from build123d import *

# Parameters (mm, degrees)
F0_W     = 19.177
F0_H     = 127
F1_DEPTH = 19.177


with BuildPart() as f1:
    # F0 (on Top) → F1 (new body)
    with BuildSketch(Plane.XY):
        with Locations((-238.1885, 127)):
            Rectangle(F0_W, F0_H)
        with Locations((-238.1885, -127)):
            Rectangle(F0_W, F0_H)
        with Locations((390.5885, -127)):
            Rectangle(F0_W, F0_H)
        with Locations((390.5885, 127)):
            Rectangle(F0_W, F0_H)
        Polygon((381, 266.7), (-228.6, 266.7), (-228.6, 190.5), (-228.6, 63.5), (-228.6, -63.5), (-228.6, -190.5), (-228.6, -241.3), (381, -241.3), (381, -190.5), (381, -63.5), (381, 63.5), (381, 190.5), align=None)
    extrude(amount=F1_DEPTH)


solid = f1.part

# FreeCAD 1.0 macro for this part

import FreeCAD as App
import Part
import Sketcher
from FreeCAD import Vector
Q = App.Units.Quantity


def add_polygon(sketch, points):
    """Adds a closed chain of lines whose ends are joined by coincident constraints."""
    first, n = sketch.GeometryCount, len(points)
    for a, b in zip(points, points[1:] + points[:1]):
        sketch.addGeometry(Part.LineSegment(App.Vector(*a, 0), App.Vector(*b, 0)), False)
    for i in range(n):
        sketch.addConstraint(Sketcher.Constraint("Coincident", first + i, 2, first + (i + 1) % n, 1))

doc = App.newDocument("Part")
body = doc.addObject("PartDesign::Body", "Body")

# Sketch on XY plane
sketch1 = body.newObject("Sketcher::SketchObject", "Sketch")
sketch1.AttachmentSupport = (doc.getObject("XY_Plane"), [""])
sketch1.MapMode = "FlatFace"
add_polygon(sketch1, [(-248, 190), (-248, 64), (-229, 64), (-229, -64), (-248, -64), (-248, -190), (-229, -190), (-229, -241), (381, -241), (381, -190), (400, -190), (400, -64), (381, -64), (381, 64), (400, 64), (400, 190), (381, 190), (381, 267), (-229, 267), (-229, 190)])  # lines 0-19
sketch1.addConstraint([
    Sketcher.Constraint("Vertical", 0),
    Sketcher.Constraint("Horizontal", 1),
    Sketcher.Constraint("Vertical", 2),
    Sketcher.Constraint("Horizontal", 3),
    Sketcher.Constraint("Vertical", 4),
    Sketcher.Constraint("Horizontal", 5),
    Sketcher.Constraint("Vertical", 6),
    Sketcher.Constraint("Horizontal", 7),
    Sketcher.Constraint("Vertical", 8),
    Sketcher.Constraint("Horizontal", 9),
    Sketcher.Constraint("Vertical", 10),
    Sketcher.Constraint("Horizontal", 11),
    Sketcher.Constraint("Vertical", 12),
    Sketcher.Constraint("Horizontal", 13),
    Sketcher.Constraint("Vertical", 14),
    Sketcher.Constraint("Horizontal", 15),
    Sketcher.Constraint("Vertical", 16),
    Sketcher.Constraint("Horizontal", 17),
    Sketcher.Constraint("Vertical", 18),
    Sketcher.Constraint("Horizontal", 19),
    Sketcher.Constraint("Symmetric", 0, 2, 3, 2, -1),
    Sketcher.Constraint("Symmetric", 10, 2, 13, 2, -1),
    Sketcher.Constraint("Symmetric", 8, 2, 15, 2, -1),
    Sketcher.Constraint("Symmetric", 5, 2, 18, 2, -1),
    Sketcher.Constraint("Horizontal", 5, 2, 8, 2),
    Sketcher.Constraint("Horizontal", 3, 2, 10, 2),
    Sketcher.Constraint("Vertical", 2, 2, 5, 2),
    Sketcher.Constraint("Vertical", 8, 2, 11, 2),
    Sketcher.Constraint("Equal", 5, 9),
    Sketcher.Constraint("Equal", 0, 2),
    Sketcher.Constraint("DistanceX", 7, 1, 7, 2, Q("24 in")),
    Sketcher.Constraint("DistanceY", 0, 2, 0, 1, Q("5 in")),
    Sketcher.Constraint("DistanceY", 6, 2, 6, 1, Q("2 in")),
    Sketcher.Constraint("DistanceY", 16, 1, 16, 2, Q("3 in")),
    Sketcher.Constraint("DistanceX", 1, 2, -1, 1, Q("9 in")),
    Sketcher.Constraint("DistanceX", 1, 1, 1, 2, Q("0.755 in")),
])
pad1 = body.newObject("PartDesign::Pad", "Pad")
pad1.Profile = sketch1
pad1.Length = Q("0.755 in")

doc.recompute()
